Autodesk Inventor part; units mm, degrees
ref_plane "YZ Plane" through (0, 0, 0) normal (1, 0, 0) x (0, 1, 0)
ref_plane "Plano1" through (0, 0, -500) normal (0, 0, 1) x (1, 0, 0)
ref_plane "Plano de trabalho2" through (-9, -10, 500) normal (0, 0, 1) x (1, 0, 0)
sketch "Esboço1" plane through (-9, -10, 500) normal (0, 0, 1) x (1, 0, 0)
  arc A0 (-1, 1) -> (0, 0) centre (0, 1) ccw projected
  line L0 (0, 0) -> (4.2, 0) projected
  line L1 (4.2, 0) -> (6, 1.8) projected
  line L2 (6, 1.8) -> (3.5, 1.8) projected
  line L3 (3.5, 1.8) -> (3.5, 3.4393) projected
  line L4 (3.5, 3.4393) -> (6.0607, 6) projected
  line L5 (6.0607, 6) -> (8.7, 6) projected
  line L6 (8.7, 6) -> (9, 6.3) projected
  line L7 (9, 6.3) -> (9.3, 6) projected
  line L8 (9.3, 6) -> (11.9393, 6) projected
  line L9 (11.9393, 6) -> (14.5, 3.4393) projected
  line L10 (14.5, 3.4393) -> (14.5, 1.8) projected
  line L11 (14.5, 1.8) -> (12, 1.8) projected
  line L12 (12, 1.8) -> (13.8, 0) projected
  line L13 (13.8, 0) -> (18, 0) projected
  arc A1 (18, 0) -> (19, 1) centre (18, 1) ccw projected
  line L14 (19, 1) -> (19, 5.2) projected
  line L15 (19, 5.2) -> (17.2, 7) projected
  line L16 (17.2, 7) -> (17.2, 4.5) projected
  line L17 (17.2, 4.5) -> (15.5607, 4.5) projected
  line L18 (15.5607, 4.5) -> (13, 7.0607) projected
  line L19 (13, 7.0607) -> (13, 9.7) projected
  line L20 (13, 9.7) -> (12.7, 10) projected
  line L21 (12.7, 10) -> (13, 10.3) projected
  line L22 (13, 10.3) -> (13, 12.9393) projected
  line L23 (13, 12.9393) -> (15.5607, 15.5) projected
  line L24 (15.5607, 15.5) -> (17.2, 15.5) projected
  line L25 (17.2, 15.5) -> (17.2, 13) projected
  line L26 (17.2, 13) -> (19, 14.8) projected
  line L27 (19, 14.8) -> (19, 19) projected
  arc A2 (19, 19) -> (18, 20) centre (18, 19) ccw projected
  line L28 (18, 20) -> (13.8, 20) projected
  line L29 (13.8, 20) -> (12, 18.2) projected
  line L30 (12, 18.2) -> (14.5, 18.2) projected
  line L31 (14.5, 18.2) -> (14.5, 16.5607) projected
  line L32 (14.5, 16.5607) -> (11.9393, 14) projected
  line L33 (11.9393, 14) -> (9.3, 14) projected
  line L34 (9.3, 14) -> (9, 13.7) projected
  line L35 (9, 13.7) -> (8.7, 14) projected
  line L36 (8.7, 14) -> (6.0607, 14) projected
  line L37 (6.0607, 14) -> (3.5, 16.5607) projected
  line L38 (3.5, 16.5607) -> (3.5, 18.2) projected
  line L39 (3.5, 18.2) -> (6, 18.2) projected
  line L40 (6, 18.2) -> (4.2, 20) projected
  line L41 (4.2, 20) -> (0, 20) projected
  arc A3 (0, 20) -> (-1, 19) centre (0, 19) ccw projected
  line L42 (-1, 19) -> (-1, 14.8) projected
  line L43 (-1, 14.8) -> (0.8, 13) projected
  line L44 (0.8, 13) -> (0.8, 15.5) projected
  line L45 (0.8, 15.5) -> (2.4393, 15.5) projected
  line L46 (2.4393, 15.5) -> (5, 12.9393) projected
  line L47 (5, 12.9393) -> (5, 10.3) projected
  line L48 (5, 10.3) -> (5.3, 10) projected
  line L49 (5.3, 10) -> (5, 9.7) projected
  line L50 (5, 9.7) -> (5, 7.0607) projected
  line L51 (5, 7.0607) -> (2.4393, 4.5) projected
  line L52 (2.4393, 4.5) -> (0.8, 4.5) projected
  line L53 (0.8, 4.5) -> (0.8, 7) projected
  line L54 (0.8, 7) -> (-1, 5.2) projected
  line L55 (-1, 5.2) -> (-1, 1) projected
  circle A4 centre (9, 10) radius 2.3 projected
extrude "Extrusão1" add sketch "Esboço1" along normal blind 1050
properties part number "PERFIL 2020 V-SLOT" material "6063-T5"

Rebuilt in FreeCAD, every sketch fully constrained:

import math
import FreeCAD as App
import Part
import Sketcher

V = App.Vector

doc = App.newDocument("Part")
body = doc.addObject("PartDesign::Body", "Body")

# Sketch on XY plane
sketch1 = body.newObject("Sketcher::SketchObject", "Sketch")
sketch1.AttachmentSupport = (doc.getObject("XY_Plane"), [""])
sketch1.MapMode = "FlatFace"
sketch1.AttachmentOffset = App.Placement(V(0, 0, 500), App.Rotation())
sketch1.addGeometry(Part.LineSegment(V(-10, -4.8, 0), V(-10, -9, 0)), False)
sketch1.addGeometry(Part.ArcOfCircle(Part.Circle(V(-9, -9, 0), V(0, 0, 1), 1), math.radians(180), math.radians(270)), False)
sketch1.addGeometry(Part.LineSegment(V(-9, -10, 0), V(-4.8, -10, 0)), False)
sketch1.addGeometry(Part.LineSegment(V(-4.8, -10, 0), V(-3, -8.2, 0)), False)
sketch1.addGeometry(Part.LineSegment(V(-3, -8.2, 0), V(-5.5, -8.2, 0)), False)
sketch1.addGeometry(Part.LineSegment(V(-5.5, -8.2, 0), V(-5.5, -6.56, 0)), False)
sketch1.addGeometry(Part.LineSegment(V(-5.5, -6.56, 0), V(-2.94, -4, 0)), False)
sketch1.addGeometry(Part.LineSegment(V(-2.94, -4, 0), V(-0.3, -4, 0)), False)
sketch1.addGeometry(Part.LineSegment(V(-0.3, -4, 0), V(0, -3.7, 0)), False)
sketch1.addGeometry(Part.LineSegment(V(0, -3.7, 0), V(0.3, -4, 0)), False)
sketch1.addGeometry(Part.LineSegment(V(0.3, -4, 0), V(2.94, -4, 0)), False)
sketch1.addGeometry(Part.LineSegment(V(2.94, -4, 0), V(5.5, -6.56, 0)), False)
sketch1.addGeometry(Part.LineSegment(V(5.5, -6.56, 0), V(5.5, -8.2, 0)), False)
sketch1.addGeometry(Part.LineSegment(V(5.5, -8.2, 0), V(3, -8.2, 0)), False)
sketch1.addGeometry(Part.LineSegment(V(3, -8.2, 0), V(4.8, -10, 0)), False)
sketch1.addGeometry(Part.LineSegment(V(4.8, -10, 0), V(9, -10, 0)), False)
sketch1.addGeometry(Part.ArcOfCircle(Part.Circle(V(9, -9, 0), V(0, 0, 1), 1), math.radians(-90), math.radians(0)), False)
sketch1.addGeometry(Part.LineSegment(V(10, -9, 0), V(10, -4.8, 0)), False)
sketch1.addGeometry(Part.LineSegment(V(10, -4.8, 0), V(8.2, -3, 0)), False)
sketch1.addGeometry(Part.LineSegment(V(8.2, -3, 0), V(8.2, -5.5, 0)), False)
sketch1.addGeometry(Part.LineSegment(V(8.2, -5.5, 0), V(6.56, -5.5, 0)), False)
sketch1.addGeometry(Part.LineSegment(V(6.56, -5.5, 0), V(4, -2.94, 0)), False)
sketch1.addGeometry(Part.LineSegment(V(4, -2.94, 0), V(4, -0.3, 0)), False)
sketch1.addGeometry(Part.LineSegment(V(4, -0.3, 0), V(3.7, 0, 0)), False)
sketch1.addGeometry(Part.LineSegment(V(3.7, 0, 0), V(4, 0.3, 0)), False)
sketch1.addGeometry(Part.LineSegment(V(4, 0.3, 0), V(4, 2.94, 0)), False)
sketch1.addGeometry(Part.LineSegment(V(4, 2.94, 0), V(6.56, 5.5, 0)), False)
sketch1.addGeometry(Part.LineSegment(V(6.56, 5.5, 0), V(8.2, 5.5, 0)), False)
sketch1.addGeometry(Part.LineSegment(V(8.2, 5.5, 0), V(8.2, 3, 0)), False)
sketch1.addGeometry(Part.LineSegment(V(8.2, 3, 0), V(10, 4.8, 0)), False)
sketch1.addGeometry(Part.LineSegment(V(10, 4.8, 0), V(10, 9, 0)), False)
sketch1.addGeometry(Part.ArcOfCircle(Part.Circle(V(9, 9, 0), V(0, 0, 1), 1), math.radians(0), math.radians(90)), False)
sketch1.addGeometry(Part.LineSegment(V(9, 10, 0), V(4.8, 10, 0)), False)
sketch1.addGeometry(Part.LineSegment(V(4.8, 10, 0), V(3, 8.2, 0)), False)
sketch1.addGeometry(Part.LineSegment(V(3, 8.2, 0), V(5.5, 8.2, 0)), False)
sketch1.addGeometry(Part.LineSegment(V(5.5, 8.2, 0), V(5.5, 6.56, 0)), False)
sketch1.addGeometry(Part.LineSegment(V(5.5, 6.56, 0), V(2.94, 4, 0)), False)
sketch1.addGeometry(Part.LineSegment(V(2.94, 4, 0), V(0.3, 4, 0)), False)
sketch1.addGeometry(Part.LineSegment(V(0.3, 4, 0), V(0, 3.7, 0)), False)
sketch1.addGeometry(Part.LineSegment(V(0, 3.7, 0), V(-0.3, 4, 0)), False)
sketch1.addGeometry(Part.LineSegment(V(-0.3, 4, 0), V(-2.94, 4, 0)), False)
sketch1.addGeometry(Part.LineSegment(V(-2.94, 4, 0), V(-5.5, 6.56, 0)), False)
sketch1.addGeometry(Part.LineSegment(V(-5.5, 6.56, 0), V(-5.5, 8.2, 0)), False)
sketch1.addGeometry(Part.LineSegment(V(-5.5, 8.2, 0), V(-3, 8.2, 0)), False)
sketch1.addGeometry(Part.LineSegment(V(-3, 8.2, 0), V(-4.8, 10, 0)), False)
sketch1.addGeometry(Part.LineSegment(V(-4.8, 10, 0), V(-9, 10, 0)), False)
sketch1.addGeometry(Part.ArcOfCircle(Part.Circle(V(-9, 9, 0), V(0, 0, 1), 1), math.radians(90), math.radians(180)), False)
sketch1.addGeometry(Part.LineSegment(V(-10, 9, 0), V(-10, 4.8, 0)), False)
sketch1.addGeometry(Part.LineSegment(V(-10, 4.8, 0), V(-8.2, 3, 0)), False)
sketch1.addGeometry(Part.LineSegment(V(-8.2, 3, 0), V(-8.2, 5.5, 0)), False)
sketch1.addGeometry(Part.LineSegment(V(-8.2, 5.5, 0), V(-6.56, 5.5, 0)), False)
sketch1.addGeometry(Part.LineSegment(V(-6.56, 5.5, 0), V(-4, 2.94, 0)), False)
sketch1.addGeometry(Part.LineSegment(V(-4, 2.94, 0), V(-4, 0.3, 0)), False)
sketch1.addGeometry(Part.LineSegment(V(-4, 0.3, 0), V(-3.7, 0, 0)), False)
sketch1.addGeometry(Part.LineSegment(V(-3.7, 0, 0), V(-4, -0.3, 0)), False)
sketch1.addGeometry(Part.LineSegment(V(-4, -0.3, 0), V(-4, -2.94, 0)), False)
sketch1.addGeometry(Part.LineSegment(V(-4, -2.94, 0), V(-6.56, -5.5, 0)), False)
sketch1.addGeometry(Part.LineSegment(V(-6.56, -5.5, 0), V(-8.2, -5.5, 0)), False)
sketch1.addGeometry(Part.LineSegment(V(-8.2, -5.5, 0), V(-8.2, -3, 0)), False)
sketch1.addGeometry(Part.LineSegment(V(-8.2, -3, 0), V(-10, -4.8, 0)), False)
sketch1.addGeometry(Part.Circle(V(0, 0, 0), V(0, 0, 1), 2.3), False)
sketch1.addConstraint(Sketcher.Constraint("Tangent", 0, 2, 1, 1))
sketch1.addConstraint(Sketcher.Constraint("Tangent", 1, 2, 2, 1))
sketch1.addConstraint(Sketcher.Constraint("Coincident", 2, 2, 3, 1))
sketch1.addConstraint(Sketcher.Constraint("Coincident", 3, 2, 4, 1))
sketch1.addConstraint(Sketcher.Constraint("Coincident", 4, 2, 5, 1))
sketch1.addConstraint(Sketcher.Constraint("Coincident", 5, 2, 6, 1))
sketch1.addConstraint(Sketcher.Constraint("Coincident", 6, 2, 7, 1))
sketch1.addConstraint(Sketcher.Constraint("Coincident", 7, 2, 8, 1))
sketch1.addConstraint(Sketcher.Constraint("Coincident", 8, 2, 9, 1))
sketch1.addConstraint(Sketcher.Constraint("Coincident", 9, 2, 10, 1))
sketch1.addConstraint(Sketcher.Constraint("Coincident", 10, 2, 11, 1))
sketch1.addConstraint(Sketcher.Constraint("Coincident", 11, 2, 12, 1))
sketch1.addConstraint(Sketcher.Constraint("Coincident", 12, 2, 13, 1))
sketch1.addConstraint(Sketcher.Constraint("Coincident", 13, 2, 14, 1))
sketch1.addConstraint(Sketcher.Constraint("Coincident", 14, 2, 15, 1))
sketch1.addConstraint(Sketcher.Constraint("Tangent", 15, 2, 16, 1))
sketch1.addConstraint(Sketcher.Constraint("Tangent", 16, 2, 17, 1))
sketch1.addConstraint(Sketcher.Constraint("Coincident", 17, 2, 18, 1))
sketch1.addConstraint(Sketcher.Constraint("Coincident", 18, 2, 19, 1))
sketch1.addConstraint(Sketcher.Constraint("Coincident", 19, 2, 20, 1))
sketch1.addConstraint(Sketcher.Constraint("Coincident", 20, 2, 21, 1))
sketch1.addConstraint(Sketcher.Constraint("Coincident", 21, 2, 22, 1))
sketch1.addConstraint(Sketcher.Constraint("Coincident", 22, 2, 23, 1))
sketch1.addConstraint(Sketcher.Constraint("Coincident", 23, 2, 24, 1))
sketch1.addConstraint(Sketcher.Constraint("Coincident", 24, 2, 25, 1))
sketch1.addConstraint(Sketcher.Constraint("Coincident", 25, 2, 26, 1))
sketch1.addConstraint(Sketcher.Constraint("Coincident", 26, 2, 27, 1))
sketch1.addConstraint(Sketcher.Constraint("Coincident", 27, 2, 28, 1))
sketch1.addConstraint(Sketcher.Constraint("Coincident", 28, 2, 29, 1))
sketch1.addConstraint(Sketcher.Constraint("Coincident", 29, 2, 30, 1))
sketch1.addConstraint(Sketcher.Constraint("Tangent", 30, 2, 31, 1))
sketch1.addConstraint(Sketcher.Constraint("Tangent", 31, 2, 32, 1))
sketch1.addConstraint(Sketcher.Constraint("Coincident", 32, 2, 33, 1))
sketch1.addConstraint(Sketcher.Constraint("Coincident", 33, 2, 34, 1))
sketch1.addConstraint(Sketcher.Constraint("Coincident", 34, 2, 35, 1))
sketch1.addConstraint(Sketcher.Constraint("Coincident", 35, 2, 36, 1))
sketch1.addConstraint(Sketcher.Constraint("Coincident", 36, 2, 37, 1))
sketch1.addConstraint(Sketcher.Constraint("Coincident", 37, 2, 38, 1))
sketch1.addConstraint(Sketcher.Constraint("Coincident", 38, 2, 39, 1))
sketch1.addConstraint(Sketcher.Constraint("Coincident", 39, 2, 40, 1))
sketch1.addConstraint(Sketcher.Constraint("Coincident", 40, 2, 41, 1))
sketch1.addConstraint(Sketcher.Constraint("Coincident", 41, 2, 42, 1))
sketch1.addConstraint(Sketcher.Constraint("Coincident", 42, 2, 43, 1))
sketch1.addConstraint(Sketcher.Constraint("Coincident", 43, 2, 44, 1))
sketch1.addConstraint(Sketcher.Constraint("Coincident", 44, 2, 45, 1))
sketch1.addConstraint(Sketcher.Constraint("Tangent", 45, 2, 46, 1))
sketch1.addConstraint(Sketcher.Constraint("Tangent", 46, 2, 47, 1))
sketch1.addConstraint(Sketcher.Constraint("Coincident", 47, 2, 48, 1))
sketch1.addConstraint(Sketcher.Constraint("Coincident", 48, 2, 49, 1))
sketch1.addConstraint(Sketcher.Constraint("Coincident", 49, 2, 50, 1))
sketch1.addConstraint(Sketcher.Constraint("Coincident", 50, 2, 51, 1))
sketch1.addConstraint(Sketcher.Constraint("Coincident", 51, 2, 52, 1))
sketch1.addConstraint(Sketcher.Constraint("Coincident", 52, 2, 53, 1))
sketch1.addConstraint(Sketcher.Constraint("Coincident", 53, 2, 54, 1))
sketch1.addConstraint(Sketcher.Constraint("Coincident", 54, 2, 55, 1))
sketch1.addConstraint(Sketcher.Constraint("Coincident", 55, 2, 56, 1))
sketch1.addConstraint(Sketcher.Constraint("Coincident", 56, 2, 57, 1))
sketch1.addConstraint(Sketcher.Constraint("Coincident", 57, 2, 58, 1))
sketch1.addConstraint(Sketcher.Constraint("Coincident", 58, 2, 59, 1))
sketch1.addConstraint(Sketcher.Constraint("Coincident", 59, 2, 0, 1))
sketch1.addConstraint(Sketcher.Constraint("Vertical", 0))
sketch1.addConstraint(Sketcher.Constraint("Horizontal", 2))
sketch1.addConstraint(Sketcher.Constraint("Horizontal", 4))
sketch1.addConstraint(Sketcher.Constraint("Vertical", 5))
sketch1.addConstraint(Sketcher.Constraint("Horizontal", 7))
sketch1.addConstraint(Sketcher.Constraint("Horizontal", 10))
sketch1.addConstraint(Sketcher.Constraint("Vertical", 12))
sketch1.addConstraint(Sketcher.Constraint("Horizontal", 13))
sketch1.addConstraint(Sketcher.Constraint("Horizontal", 15))
sketch1.addConstraint(Sketcher.Constraint("Vertical", 17))
sketch1.addConstraint(Sketcher.Constraint("Vertical", 19))
sketch1.addConstraint(Sketcher.Constraint("Horizontal", 20))
sketch1.addConstraint(Sketcher.Constraint("Vertical", 22))
sketch1.addConstraint(Sketcher.Constraint("Vertical", 25))
sketch1.addConstraint(Sketcher.Constraint("Horizontal", 27))
sketch1.addConstraint(Sketcher.Constraint("Vertical", 28))
sketch1.addConstraint(Sketcher.Constraint("Vertical", 30))
sketch1.addConstraint(Sketcher.Constraint("Horizontal", 32))
sketch1.addConstraint(Sketcher.Constraint("Horizontal", 34))
sketch1.addConstraint(Sketcher.Constraint("Vertical", 35))
sketch1.addConstraint(Sketcher.Constraint("Horizontal", 37))
sketch1.addConstraint(Sketcher.Constraint("Horizontal", 40))
sketch1.addConstraint(Sketcher.Constraint("Vertical", 42))
sketch1.addConstraint(Sketcher.Constraint("Horizontal", 43))
sketch1.addConstraint(Sketcher.Constraint("Horizontal", 45))
sketch1.addConstraint(Sketcher.Constraint("Vertical", 47))
sketch1.addConstraint(Sketcher.Constraint("Vertical", 49))
sketch1.addConstraint(Sketcher.Constraint("Horizontal", 50))
sketch1.addConstraint(Sketcher.Constraint("Vertical", 52))
sketch1.addConstraint(Sketcher.Constraint("Vertical", 55))
sketch1.addConstraint(Sketcher.Constraint("Horizontal", 57))
sketch1.addConstraint(Sketcher.Constraint("Vertical", 58))
sketch1.addConstraint(Sketcher.Constraint("Coincident", 60, 3, -1, 1))
sketch1.addConstraint(Sketcher.Constraint("Equal", 1, 16))
sketch1.addConstraint(Sketcher.Constraint("Equal", 16, 31))
sketch1.addConstraint(Sketcher.Constraint("Equal", 31, 46))
sketch1.addConstraint(Sketcher.Constraint("Symmetric", 1, 3, 31, 3, -1, 1))
sketch1.addConstraint(Sketcher.Constraint("Symmetric", 16, 3, 46, 3, -1, 1))
sketch1.addConstraint(Sketcher.Constraint("Symmetric", 3, 2, 33, 2, -1, 1))
sketch1.addConstraint(Sketcher.Constraint("Symmetric", 5, 2, 35, 2, -1, 1))
sketch1.addConstraint(Sketcher.Constraint("Symmetric", 6, 2, 36, 2, -1, 1))
sketch1.addConstraint(Sketcher.Constraint("Symmetric", 8, 2, 38, 2, -1, 1))
sketch1.addConstraint(Sketcher.Constraint("Symmetric", 9, 2, 39, 2, -1, 1))
sketch1.addConstraint(Sketcher.Constraint("Symmetric", 11, 2, 41, 2, -1, 1))
sketch1.addConstraint(Sketcher.Constraint("Symmetric", 13, 2, 43, 2, -1, 1))
sketch1.addConstraint(Sketcher.Constraint("Symmetric", 18, 2, 48, 2, -1, 1))
sketch1.addConstraint(Sketcher.Constraint("Symmetric", 20, 2, 50, 2, -1, 1))
sketch1.addConstraint(Sketcher.Constraint("Symmetric", 21, 2, 51, 2, -1, 1))
sketch1.addConstraint(Sketcher.Constraint("Symmetric", 23, 2, 53, 2, -1, 1))
sketch1.addConstraint(Sketcher.Constraint("Symmetric", 24, 2, 54, 2, -1, 1))
sketch1.addConstraint(Sketcher.Constraint("Symmetric", 26, 2, 56, 2, -1, 1))
sketch1.addConstraint(Sketcher.Constraint("Symmetric", 28, 2, 58, 2, -1, 1))
sketch1.addConstraint(Sketcher.Constraint("Symmetric", 1, 3, 16, 3, -2))
sketch1.addConstraint(Sketcher.Constraint("Symmetric", 7, 2, 9, 2, -2))
sketch1.addConstraint(Sketcher.Constraint("Symmetric", 5, 2, 11, 2, -2))
sketch1.addConstraint(Sketcher.Constraint("Symmetric", 3, 2, 13, 2, -2))
sketch1.addConstraint(Sketcher.Constraint("Symmetric", 28, 2, 48, 2, -2))
sketch1.addConstraint(Sketcher.Constraint("Symmetric", 26, 2, 50, 2, -2))
sketch1.addConstraint(Sketcher.Constraint("Symmetric", 25, 2, 51, 2, -2))
sketch1.addConstraint(Sketcher.Constraint("PointOnObject", 8, 2, -2))
sketch1.addConstraint(Sketcher.Constraint("PointOnObject", 23, 2, -1))
sketch1.addConstraint(Sketcher.Constraint("Parallel", 3, 6))
sketch1.addConstraint(Sketcher.Constraint("Parallel", 6, 8))
sketch1.addConstraint(Sketcher.Constraint("Perpendicular", 8, 9))
sketch1.addConstraint(Sketcher.Constraint("Parallel", 9, 11))
sketch1.addConstraint(Sketcher.Constraint("Parallel", 11, 14))
sketch1.addConstraint(Sketcher.Constraint("Parallel", 14, 18))
sketch1.addConstraint(Sketcher.Constraint("Parallel", 18, 21))
sketch1.addConstraint(Sketcher.Constraint("Parallel", 21, 23))
sketch1.addConstraint(Sketcher.Constraint("Perpendicular", 23, 24))
sketch1.addConstraint(Sketcher.Constraint("Parallel", 26, 29))
sketch1.addConstraint(Sketcher.Constraint("Parallel", 29, 33))
sketch1.addConstraint(Sketcher.Constraint("Parallel", 36, 38))
sketch1.addConstraint(Sketcher.Constraint("Parallel", 39, 41))
sketch1.addConstraint(Sketcher.Constraint("Parallel", 41, 44))
sketch1.addConstraint(Sketcher.Constraint("Parallel", 44, 48))
sketch1.addConstraint(Sketcher.Constraint("Parallel", 51, 53))
sketch1.addConstraint(Sketcher.Constraint("Parallel", 54, 56))
sketch1.addConstraint(Sketcher.Constraint("Parallel", 56, 59))
sketch1.addConstraint(Sketcher.Constraint("Equal", 45, 0))
sketch1.addConstraint(Sketcher.Constraint("Equal", 57, 5))
sketch1.addConstraint(Sketcher.Constraint("Equal", 43, 19))
sketch1.addConstraint(Sketcher.Constraint("Equal", 40, 22))
sketch1.addConstraint(Sketcher.Constraint("Equal", 14, 18))
sketch1.addConstraint(Sketcher.Constraint("Equal", 11, 21))
sketch1.addConstraint(Sketcher.Constraint("Equal", 9, 23))
sketch1.addConstraint(Sketcher.Constraint("Radius", 1, 1.0))
sketch1.addConstraint(Sketcher.Constraint("Diameter", 60, 4.6))
sketch1.addConstraint(Sketcher.Constraint("DistanceX", 2, 1, 2, 2, 4.2))
sketch1.addConstraint(Sketcher.Constraint("DistanceX", 4, 2, 4, 1, 2.5))
sketch1.addConstraint(Sketcher.Constraint("DistanceX", 1, 3, -1, 1, 9.0))
sketch1.addConstraint(Sketcher.Constraint("DistanceX", 3, 2, -1, 1, 3.0))
sketch1.addConstraint(Sketcher.Constraint("DistanceY", 6, 2, -1, 1, 4.0))
sketch1.addConstraint(Sketcher.Constraint("DistanceX", 7, 2, -1, 1, 0.3))
sketch1.addConstraint(Sketcher.Constraint("DistanceX", 7, 1, 7, 2, 2.6393))
pad1 = body.newObject("PartDesign::Pad", "Pad")
pad1.Profile = sketch1
pad1.Length = 1050

doc.recompute()
